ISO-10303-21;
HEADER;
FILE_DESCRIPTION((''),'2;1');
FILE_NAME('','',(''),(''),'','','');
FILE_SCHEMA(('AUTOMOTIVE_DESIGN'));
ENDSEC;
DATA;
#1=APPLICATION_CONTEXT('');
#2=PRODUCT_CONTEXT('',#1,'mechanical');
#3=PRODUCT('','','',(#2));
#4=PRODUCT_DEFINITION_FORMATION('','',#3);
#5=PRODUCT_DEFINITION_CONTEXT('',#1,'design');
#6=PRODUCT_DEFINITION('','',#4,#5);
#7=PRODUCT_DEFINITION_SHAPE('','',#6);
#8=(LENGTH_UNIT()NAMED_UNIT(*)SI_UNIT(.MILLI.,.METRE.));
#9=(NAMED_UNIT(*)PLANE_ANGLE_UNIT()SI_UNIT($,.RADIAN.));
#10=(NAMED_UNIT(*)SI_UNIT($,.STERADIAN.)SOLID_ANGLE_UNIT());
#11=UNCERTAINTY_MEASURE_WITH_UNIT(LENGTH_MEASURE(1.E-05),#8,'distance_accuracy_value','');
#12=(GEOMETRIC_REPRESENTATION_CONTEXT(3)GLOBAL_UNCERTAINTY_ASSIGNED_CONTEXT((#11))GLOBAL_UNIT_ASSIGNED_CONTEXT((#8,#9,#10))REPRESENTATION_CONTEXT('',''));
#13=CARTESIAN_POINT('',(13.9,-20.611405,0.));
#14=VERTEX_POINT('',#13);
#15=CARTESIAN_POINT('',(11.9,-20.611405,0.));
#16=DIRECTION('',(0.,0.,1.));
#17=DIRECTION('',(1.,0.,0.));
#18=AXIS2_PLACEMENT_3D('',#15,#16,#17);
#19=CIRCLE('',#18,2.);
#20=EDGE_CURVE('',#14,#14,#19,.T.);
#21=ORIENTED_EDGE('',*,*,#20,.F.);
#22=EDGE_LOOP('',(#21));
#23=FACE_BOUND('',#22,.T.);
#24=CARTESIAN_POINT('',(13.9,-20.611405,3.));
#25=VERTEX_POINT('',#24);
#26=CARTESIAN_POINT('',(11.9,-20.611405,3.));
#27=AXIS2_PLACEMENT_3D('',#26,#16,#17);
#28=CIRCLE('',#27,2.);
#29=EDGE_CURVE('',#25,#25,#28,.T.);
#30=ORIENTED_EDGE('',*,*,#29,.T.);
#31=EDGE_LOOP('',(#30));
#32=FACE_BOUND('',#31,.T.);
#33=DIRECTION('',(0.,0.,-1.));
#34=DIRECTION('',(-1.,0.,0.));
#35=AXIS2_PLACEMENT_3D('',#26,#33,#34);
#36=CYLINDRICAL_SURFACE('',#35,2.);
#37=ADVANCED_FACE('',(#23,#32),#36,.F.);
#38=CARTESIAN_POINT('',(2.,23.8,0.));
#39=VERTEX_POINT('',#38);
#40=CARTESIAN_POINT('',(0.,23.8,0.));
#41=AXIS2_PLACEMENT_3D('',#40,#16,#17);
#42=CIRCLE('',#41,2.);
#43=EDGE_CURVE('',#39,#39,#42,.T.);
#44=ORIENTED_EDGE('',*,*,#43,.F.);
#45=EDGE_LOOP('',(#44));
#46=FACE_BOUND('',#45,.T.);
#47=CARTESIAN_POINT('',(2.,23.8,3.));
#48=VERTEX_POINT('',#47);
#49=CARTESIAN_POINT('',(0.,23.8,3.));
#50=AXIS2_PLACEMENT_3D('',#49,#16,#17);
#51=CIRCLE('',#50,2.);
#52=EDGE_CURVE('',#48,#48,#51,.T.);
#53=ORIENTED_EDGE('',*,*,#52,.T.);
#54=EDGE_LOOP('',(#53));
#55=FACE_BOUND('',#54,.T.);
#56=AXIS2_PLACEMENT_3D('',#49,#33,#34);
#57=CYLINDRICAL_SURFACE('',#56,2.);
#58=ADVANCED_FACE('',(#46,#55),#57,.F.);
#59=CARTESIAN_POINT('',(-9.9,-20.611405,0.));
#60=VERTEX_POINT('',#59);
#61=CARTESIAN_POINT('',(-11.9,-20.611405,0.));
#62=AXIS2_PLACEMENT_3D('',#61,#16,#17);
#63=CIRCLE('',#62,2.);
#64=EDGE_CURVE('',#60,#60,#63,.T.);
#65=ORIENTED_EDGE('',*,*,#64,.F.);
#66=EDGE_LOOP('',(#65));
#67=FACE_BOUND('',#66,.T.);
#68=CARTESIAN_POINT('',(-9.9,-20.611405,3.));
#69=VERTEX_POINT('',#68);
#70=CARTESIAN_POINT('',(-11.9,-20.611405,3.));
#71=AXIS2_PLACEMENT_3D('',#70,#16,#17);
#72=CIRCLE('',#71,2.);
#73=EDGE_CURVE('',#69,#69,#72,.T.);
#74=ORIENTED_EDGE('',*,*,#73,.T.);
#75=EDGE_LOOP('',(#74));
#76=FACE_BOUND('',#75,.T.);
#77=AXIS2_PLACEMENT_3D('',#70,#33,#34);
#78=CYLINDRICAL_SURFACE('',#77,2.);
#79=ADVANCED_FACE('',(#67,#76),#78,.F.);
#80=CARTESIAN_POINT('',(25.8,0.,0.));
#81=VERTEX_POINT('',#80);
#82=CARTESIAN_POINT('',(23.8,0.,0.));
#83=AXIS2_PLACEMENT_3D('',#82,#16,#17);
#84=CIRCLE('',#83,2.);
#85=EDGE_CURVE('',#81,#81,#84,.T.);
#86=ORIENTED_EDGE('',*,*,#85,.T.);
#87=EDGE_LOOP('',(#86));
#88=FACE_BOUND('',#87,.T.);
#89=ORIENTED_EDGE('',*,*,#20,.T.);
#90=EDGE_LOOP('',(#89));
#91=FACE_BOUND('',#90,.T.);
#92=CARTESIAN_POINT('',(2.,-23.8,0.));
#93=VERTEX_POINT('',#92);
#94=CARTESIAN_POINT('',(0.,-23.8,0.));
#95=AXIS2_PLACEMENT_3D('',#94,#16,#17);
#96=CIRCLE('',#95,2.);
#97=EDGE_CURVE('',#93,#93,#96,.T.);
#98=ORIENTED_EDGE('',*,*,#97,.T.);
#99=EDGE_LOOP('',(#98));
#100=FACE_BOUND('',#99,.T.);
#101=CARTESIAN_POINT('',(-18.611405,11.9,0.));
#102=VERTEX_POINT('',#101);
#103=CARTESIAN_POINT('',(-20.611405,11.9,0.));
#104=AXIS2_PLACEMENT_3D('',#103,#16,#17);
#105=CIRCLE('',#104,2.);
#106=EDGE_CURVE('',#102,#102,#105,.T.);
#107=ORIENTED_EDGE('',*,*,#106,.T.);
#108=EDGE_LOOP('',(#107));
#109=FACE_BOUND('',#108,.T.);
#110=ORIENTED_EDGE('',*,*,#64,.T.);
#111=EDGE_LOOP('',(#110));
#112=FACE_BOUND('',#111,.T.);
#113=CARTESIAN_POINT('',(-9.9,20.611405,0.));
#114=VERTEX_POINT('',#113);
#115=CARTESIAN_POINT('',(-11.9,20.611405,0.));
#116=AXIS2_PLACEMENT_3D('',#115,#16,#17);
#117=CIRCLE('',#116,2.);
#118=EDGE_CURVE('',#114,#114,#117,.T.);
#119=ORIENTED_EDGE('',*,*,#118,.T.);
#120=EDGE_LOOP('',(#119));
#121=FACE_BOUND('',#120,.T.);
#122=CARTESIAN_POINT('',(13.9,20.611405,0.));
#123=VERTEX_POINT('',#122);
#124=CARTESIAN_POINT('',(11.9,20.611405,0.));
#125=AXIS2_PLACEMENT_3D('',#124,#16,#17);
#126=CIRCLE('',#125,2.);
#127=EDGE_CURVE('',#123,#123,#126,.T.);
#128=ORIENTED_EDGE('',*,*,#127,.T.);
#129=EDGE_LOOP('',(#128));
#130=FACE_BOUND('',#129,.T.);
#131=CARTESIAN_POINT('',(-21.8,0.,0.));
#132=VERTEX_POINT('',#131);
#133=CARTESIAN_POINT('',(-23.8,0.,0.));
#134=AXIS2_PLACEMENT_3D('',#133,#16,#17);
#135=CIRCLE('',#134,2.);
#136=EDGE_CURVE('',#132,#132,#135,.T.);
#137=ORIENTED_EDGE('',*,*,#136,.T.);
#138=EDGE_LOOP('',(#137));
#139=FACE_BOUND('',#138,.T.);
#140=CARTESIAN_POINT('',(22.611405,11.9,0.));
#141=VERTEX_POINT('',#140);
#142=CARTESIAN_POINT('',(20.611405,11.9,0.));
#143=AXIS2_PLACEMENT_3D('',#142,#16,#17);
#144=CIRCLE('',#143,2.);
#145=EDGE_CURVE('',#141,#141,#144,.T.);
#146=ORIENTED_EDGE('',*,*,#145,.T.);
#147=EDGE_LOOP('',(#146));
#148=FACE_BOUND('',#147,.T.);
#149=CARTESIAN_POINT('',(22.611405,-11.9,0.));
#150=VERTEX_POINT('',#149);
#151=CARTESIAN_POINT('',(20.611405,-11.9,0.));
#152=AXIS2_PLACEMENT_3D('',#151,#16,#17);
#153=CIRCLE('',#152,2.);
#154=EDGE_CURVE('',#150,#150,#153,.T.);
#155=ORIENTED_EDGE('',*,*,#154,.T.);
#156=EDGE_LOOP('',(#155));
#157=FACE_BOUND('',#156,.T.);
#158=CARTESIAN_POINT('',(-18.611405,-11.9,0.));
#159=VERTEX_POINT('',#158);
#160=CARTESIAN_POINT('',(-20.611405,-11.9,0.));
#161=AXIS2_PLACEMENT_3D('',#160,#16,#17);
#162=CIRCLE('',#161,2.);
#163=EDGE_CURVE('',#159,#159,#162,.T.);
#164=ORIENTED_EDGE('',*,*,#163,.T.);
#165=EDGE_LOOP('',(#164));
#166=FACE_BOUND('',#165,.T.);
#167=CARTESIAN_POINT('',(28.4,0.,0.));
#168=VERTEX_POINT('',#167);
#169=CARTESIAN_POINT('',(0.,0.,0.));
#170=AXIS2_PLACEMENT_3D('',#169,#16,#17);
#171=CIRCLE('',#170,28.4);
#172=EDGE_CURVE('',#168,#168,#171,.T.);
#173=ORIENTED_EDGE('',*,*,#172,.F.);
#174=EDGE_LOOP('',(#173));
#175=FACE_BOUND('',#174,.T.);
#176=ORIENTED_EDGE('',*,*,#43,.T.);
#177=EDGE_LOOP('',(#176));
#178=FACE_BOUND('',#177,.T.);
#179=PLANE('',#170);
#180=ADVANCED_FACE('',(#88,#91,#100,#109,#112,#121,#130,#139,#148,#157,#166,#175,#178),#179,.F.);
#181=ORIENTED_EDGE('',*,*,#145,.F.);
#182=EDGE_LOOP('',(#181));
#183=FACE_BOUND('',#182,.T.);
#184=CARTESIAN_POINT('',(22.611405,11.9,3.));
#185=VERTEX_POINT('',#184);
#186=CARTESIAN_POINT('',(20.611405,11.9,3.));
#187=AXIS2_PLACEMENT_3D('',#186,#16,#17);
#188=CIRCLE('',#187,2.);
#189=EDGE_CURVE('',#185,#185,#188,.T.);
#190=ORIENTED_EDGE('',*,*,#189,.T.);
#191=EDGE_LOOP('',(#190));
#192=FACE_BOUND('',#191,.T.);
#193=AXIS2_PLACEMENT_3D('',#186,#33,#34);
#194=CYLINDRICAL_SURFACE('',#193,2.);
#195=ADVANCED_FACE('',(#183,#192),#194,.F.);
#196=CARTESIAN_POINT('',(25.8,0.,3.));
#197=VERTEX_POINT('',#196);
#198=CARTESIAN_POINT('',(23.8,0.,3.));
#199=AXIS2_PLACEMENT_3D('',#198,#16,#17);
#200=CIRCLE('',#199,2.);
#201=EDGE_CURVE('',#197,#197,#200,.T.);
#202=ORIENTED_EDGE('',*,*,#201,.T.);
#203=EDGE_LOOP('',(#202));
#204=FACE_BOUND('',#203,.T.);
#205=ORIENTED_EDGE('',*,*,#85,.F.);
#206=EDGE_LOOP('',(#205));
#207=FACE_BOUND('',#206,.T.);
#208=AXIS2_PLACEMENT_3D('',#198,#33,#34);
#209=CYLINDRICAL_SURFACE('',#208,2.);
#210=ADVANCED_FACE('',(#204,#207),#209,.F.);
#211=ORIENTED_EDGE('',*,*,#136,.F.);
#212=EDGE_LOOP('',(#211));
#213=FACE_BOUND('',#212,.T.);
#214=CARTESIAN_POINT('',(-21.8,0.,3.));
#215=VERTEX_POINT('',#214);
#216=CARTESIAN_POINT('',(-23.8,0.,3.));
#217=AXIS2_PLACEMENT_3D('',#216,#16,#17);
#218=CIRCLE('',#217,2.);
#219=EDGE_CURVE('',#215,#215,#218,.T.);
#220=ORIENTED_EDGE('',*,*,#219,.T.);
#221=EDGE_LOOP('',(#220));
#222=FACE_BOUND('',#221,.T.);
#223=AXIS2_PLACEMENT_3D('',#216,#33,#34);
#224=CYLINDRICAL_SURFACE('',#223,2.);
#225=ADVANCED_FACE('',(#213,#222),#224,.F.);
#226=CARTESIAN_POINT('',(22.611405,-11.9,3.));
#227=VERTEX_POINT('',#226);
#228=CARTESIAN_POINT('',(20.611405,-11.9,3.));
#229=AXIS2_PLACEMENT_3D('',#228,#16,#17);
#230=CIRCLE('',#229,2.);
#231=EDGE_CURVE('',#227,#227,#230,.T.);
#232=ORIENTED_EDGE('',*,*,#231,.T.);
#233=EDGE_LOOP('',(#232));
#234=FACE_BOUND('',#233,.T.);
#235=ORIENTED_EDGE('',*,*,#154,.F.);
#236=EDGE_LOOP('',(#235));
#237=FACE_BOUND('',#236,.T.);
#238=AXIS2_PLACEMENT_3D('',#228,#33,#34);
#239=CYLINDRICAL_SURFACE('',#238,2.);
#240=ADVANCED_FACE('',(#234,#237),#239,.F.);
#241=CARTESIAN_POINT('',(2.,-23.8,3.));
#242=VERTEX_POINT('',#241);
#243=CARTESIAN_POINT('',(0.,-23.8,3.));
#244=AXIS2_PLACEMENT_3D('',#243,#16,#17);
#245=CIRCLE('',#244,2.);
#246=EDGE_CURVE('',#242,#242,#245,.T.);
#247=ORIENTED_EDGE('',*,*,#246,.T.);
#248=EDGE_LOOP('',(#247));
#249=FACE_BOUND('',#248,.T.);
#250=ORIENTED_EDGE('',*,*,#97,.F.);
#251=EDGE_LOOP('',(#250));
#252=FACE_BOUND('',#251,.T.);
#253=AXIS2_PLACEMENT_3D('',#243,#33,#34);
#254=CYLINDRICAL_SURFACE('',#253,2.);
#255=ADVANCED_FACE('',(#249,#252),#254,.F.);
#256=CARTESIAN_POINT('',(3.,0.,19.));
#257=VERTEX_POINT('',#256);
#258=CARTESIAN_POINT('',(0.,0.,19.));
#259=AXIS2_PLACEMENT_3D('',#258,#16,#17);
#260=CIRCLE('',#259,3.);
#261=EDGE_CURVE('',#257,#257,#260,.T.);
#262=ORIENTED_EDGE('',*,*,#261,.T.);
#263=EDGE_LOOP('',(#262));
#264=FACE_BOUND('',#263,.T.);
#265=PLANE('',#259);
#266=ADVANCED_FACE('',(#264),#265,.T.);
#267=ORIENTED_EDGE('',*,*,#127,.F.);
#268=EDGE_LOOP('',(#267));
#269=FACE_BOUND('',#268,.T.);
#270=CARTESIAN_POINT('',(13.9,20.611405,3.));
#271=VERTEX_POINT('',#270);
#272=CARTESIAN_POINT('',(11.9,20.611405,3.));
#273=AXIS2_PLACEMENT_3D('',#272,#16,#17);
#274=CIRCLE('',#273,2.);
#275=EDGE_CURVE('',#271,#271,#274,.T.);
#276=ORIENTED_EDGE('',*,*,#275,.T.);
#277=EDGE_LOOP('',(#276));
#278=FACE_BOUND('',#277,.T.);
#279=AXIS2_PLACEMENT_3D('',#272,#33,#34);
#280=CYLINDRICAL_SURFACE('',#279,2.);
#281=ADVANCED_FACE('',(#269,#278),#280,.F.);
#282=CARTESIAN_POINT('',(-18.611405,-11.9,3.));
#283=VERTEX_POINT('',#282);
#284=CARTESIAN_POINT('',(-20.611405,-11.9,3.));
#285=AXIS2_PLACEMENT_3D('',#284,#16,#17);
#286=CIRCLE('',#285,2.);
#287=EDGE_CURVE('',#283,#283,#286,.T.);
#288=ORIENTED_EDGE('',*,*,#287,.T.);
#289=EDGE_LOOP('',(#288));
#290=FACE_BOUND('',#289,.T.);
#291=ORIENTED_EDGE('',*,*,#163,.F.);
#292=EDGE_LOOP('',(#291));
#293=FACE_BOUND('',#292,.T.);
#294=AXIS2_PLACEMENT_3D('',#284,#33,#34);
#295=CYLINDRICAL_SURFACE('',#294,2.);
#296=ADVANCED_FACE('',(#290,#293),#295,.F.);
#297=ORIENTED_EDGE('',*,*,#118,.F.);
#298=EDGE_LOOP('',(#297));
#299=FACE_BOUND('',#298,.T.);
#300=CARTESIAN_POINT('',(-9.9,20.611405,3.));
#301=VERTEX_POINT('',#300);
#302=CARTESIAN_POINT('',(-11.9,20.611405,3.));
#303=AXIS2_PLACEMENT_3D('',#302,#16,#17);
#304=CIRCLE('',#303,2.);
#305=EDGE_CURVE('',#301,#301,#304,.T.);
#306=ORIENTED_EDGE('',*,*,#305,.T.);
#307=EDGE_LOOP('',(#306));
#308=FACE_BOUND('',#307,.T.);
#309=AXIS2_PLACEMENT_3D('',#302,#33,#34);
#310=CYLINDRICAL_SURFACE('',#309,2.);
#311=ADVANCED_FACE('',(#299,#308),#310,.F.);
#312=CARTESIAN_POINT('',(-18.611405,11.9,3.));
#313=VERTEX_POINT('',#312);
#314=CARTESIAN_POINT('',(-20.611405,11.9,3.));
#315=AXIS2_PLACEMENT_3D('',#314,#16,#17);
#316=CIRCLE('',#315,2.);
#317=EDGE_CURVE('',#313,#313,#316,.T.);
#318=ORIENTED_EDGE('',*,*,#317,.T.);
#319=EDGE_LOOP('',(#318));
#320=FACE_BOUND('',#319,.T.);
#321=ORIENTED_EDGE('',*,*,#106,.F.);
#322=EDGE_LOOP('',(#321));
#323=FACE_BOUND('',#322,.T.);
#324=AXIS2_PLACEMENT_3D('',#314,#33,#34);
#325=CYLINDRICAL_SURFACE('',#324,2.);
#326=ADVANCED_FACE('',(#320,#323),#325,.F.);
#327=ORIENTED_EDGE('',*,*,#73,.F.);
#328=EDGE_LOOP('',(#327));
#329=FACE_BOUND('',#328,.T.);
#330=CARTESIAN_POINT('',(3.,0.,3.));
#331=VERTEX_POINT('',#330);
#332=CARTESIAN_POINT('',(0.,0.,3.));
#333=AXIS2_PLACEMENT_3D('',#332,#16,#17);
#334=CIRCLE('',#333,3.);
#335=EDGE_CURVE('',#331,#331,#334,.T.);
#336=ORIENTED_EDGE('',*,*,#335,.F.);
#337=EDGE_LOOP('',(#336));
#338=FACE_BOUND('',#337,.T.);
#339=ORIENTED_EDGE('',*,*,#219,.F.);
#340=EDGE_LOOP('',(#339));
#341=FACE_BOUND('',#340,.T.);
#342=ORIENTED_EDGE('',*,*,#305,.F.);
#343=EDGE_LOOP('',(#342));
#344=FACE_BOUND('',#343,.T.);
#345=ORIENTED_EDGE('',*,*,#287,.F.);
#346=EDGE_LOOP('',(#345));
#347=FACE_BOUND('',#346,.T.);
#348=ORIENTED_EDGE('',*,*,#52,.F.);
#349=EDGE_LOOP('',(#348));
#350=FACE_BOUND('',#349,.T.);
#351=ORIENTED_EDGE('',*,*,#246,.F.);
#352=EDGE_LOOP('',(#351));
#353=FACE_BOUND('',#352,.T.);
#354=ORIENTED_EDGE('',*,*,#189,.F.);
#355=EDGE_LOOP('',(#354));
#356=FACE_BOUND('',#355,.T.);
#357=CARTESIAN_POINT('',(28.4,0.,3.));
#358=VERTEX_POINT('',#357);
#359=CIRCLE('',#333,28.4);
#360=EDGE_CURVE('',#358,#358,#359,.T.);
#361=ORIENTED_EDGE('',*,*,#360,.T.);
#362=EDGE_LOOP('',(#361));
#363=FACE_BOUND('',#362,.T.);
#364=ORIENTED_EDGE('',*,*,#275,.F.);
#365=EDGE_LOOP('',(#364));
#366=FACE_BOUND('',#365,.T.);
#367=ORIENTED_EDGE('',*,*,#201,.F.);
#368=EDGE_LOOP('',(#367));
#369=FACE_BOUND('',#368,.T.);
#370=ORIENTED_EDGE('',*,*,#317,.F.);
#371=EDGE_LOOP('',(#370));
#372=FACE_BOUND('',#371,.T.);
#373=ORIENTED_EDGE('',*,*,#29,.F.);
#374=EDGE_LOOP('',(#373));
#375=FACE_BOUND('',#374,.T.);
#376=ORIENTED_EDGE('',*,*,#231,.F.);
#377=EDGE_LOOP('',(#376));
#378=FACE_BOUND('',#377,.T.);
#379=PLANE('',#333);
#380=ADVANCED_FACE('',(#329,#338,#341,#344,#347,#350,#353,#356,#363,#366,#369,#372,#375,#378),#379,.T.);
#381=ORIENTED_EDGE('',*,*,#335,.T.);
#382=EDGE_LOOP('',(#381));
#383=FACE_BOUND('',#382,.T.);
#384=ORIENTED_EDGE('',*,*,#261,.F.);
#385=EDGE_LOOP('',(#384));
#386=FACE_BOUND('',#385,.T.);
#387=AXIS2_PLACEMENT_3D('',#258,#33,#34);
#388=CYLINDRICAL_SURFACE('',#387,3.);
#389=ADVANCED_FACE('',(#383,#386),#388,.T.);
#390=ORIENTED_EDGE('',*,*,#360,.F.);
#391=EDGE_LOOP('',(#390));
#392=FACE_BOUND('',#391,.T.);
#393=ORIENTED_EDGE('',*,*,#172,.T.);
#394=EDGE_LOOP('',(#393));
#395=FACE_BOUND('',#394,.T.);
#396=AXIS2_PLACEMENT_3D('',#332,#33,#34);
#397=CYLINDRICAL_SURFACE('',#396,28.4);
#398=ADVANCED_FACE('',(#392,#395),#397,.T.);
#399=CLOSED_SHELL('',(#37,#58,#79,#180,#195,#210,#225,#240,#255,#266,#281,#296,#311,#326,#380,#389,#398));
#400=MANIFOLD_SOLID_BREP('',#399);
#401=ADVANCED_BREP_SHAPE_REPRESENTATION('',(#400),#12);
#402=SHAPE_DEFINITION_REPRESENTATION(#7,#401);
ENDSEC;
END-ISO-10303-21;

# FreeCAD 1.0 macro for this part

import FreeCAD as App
import Part
import Sketcher
Q = App.Units.Quantity

doc = App.newDocument("Part")
params = doc.addObject("Spreadsheet::Sheet", "Params")
for row, (alias, value) in enumerate([
    ("sketch1_diameter", "4 mm"),
    ("sketch1_diameter2", "56.8 mm"),
    ("pad1_length", "3 mm"),
    ("sketch2_diameter", "6 mm"),
    ("pad2_length", "16 mm"),
], start=1):
    params.set(f"A{row}", alias)
    params.set(f"B{row}", "=" + value)
    params.setAlias(f"B{row}", alias)

body = doc.addObject("PartDesign::Body", "Body")

sketch1 = body.newObject("Sketcher::SketchObject", "Sketch")
sketch1.AttachmentSupport = (doc.getObject("XY_Plane"), [""])
sketch1.MapMode = "FlatFace"
sketch1.addGeometry([
    Part.Circle(App.Vector(0, 0, 0), App.Vector(0, 0, 1), 28.4),
    Part.Circle(App.Vector(-11.9, -20.6, 0), App.Vector(0, 0, 1), 2),
    Part.Circle(App.Vector(-20.6, -11.9, 0), App.Vector(0, 0, 1), 2),
    Part.Circle(App.Vector(0, -23.8, 0), App.Vector(0, 0, 1), 2),
    Part.Circle(App.Vector(11.9, -20.6, 0), App.Vector(0, 0, 1), 2),
    Part.Circle(App.Vector(20.6, -11.9, 0), App.Vector(0, 0, 1), 2),
    Part.Circle(App.Vector(-23.8, 0, 0), App.Vector(0, 0, 1), 2),
    Part.Circle(App.Vector(-20.6, 11.9, 0), App.Vector(0, 0, 1), 2),
    Part.Circle(App.Vector(-11.9, 20.6, 0), App.Vector(0, 0, 1), 2),
    Part.Circle(App.Vector(23.8, 0, 0), App.Vector(0, 0, 1), 2),
    Part.Circle(App.Vector(20.6, 11.9, 0), App.Vector(0, 0, 1), 2),
    Part.Circle(App.Vector(0, 23.8, 0), App.Vector(0, 0, 1), 2),
    Part.Circle(App.Vector(11.9, 20.6, 0), App.Vector(0, 0, 1), 2),
], False)
sketch1.addConstraint([
    Sketcher.Constraint("Coincident", 0, 3, -1, 1),
    Sketcher.Constraint("Equal", 1, 2),
    Sketcher.Constraint("Equal", 2, 3),
    Sketcher.Constraint("Equal", 3, 4),
    Sketcher.Constraint("Equal", 4, 5),
    Sketcher.Constraint("Equal", 5, 6),
    Sketcher.Constraint("Equal", 6, 7),
    Sketcher.Constraint("Equal", 7, 8),
    Sketcher.Constraint("Equal", 8, 9),
    Sketcher.Constraint("Equal", 9, 10),
    Sketcher.Constraint("Equal", 10, 11),
    Sketcher.Constraint("Equal", 11, 12),
    Sketcher.Constraint("Symmetric", 5, 3, 7, 3, -1, 1),
    Sketcher.Constraint("Symmetric", 4, 3, 8, 3, -1, 1),
    Sketcher.Constraint("Symmetric", 6, 3, 9, 3, -1, 1),
    Sketcher.Constraint("Symmetric", 2, 3, 10, 3, -1, 1),
    Sketcher.Constraint("Symmetric", 3, 3, 11, 3, -1, 1),
    Sketcher.Constraint("Symmetric", 1, 3, 12, 3, -1, 1),
    Sketcher.Constraint("Symmetric", 1, 3, 4, 3, -2),
    Sketcher.Constraint("Symmetric", 2, 3, 5, 3, -2),
    Sketcher.Constraint("PointOnObject", 3, 3, -2),
    Sketcher.Constraint("PointOnObject", 6, 3, -1),
    Sketcher.Constraint("Diameter", 1, Q("4 mm")),
    Sketcher.Constraint("Diameter", 0, Q("56.8 mm")),
    Sketcher.Constraint("DistanceX", 1, 3, -1, 1, Q("11.9 mm")),
    Sketcher.Constraint("DistanceY", 2, 3, -1, 1, Q("11.9 mm")),
    Sketcher.Constraint("DistanceY", 3, 3, -1, 1, Q("23.8 mm")),
    Sketcher.Constraint("DistanceX", 6, 3, -1, 1, Q("23.8 mm")),
    Sketcher.Constraint("DistanceX", 2, 3, 5, 3, Q("41.222809 mm")),
    Sketcher.Constraint("DistanceY", 1, 3, 8, 3, Q("41.222809 mm")),
])
sketch1.setExpression("Constraints[22]", "Params.sketch1_diameter")
sketch1.setExpression("Constraints[23]", "Params.sketch1_diameter2")
pad1 = body.newObject("PartDesign::Pad", "Pad")
pad1.Profile = sketch1
pad1.setExpression("Length", "Params.pad1_length")

sketch2 = body.newObject("Sketcher::SketchObject", "Sketch001")
sketch2.AttachmentSupport = (doc.getObject("XY_Plane"), [""])
sketch2.MapMode = "FlatFace"
sketch2.AttachmentOffset = App.Placement(App.Vector(0, 0, 3), App.Rotation())
sketch2.addGeometry(Part.Circle(App.Vector(0, 0, 0), App.Vector(0, 0, 1), 3), False)
sketch2.addConstraint([
    Sketcher.Constraint("Coincident", 0, 3, -1, 1),
    Sketcher.Constraint("Diameter", 0, Q("6 mm")),
])
sketch2.setExpression("Constraints[1]", "Params.sketch2_diameter")
pad2 = body.newObject("PartDesign::Pad", "Pad001")
pad2.Profile = sketch2
pad2.setExpression("Length", "Params.pad2_length")

doc.recompute()
